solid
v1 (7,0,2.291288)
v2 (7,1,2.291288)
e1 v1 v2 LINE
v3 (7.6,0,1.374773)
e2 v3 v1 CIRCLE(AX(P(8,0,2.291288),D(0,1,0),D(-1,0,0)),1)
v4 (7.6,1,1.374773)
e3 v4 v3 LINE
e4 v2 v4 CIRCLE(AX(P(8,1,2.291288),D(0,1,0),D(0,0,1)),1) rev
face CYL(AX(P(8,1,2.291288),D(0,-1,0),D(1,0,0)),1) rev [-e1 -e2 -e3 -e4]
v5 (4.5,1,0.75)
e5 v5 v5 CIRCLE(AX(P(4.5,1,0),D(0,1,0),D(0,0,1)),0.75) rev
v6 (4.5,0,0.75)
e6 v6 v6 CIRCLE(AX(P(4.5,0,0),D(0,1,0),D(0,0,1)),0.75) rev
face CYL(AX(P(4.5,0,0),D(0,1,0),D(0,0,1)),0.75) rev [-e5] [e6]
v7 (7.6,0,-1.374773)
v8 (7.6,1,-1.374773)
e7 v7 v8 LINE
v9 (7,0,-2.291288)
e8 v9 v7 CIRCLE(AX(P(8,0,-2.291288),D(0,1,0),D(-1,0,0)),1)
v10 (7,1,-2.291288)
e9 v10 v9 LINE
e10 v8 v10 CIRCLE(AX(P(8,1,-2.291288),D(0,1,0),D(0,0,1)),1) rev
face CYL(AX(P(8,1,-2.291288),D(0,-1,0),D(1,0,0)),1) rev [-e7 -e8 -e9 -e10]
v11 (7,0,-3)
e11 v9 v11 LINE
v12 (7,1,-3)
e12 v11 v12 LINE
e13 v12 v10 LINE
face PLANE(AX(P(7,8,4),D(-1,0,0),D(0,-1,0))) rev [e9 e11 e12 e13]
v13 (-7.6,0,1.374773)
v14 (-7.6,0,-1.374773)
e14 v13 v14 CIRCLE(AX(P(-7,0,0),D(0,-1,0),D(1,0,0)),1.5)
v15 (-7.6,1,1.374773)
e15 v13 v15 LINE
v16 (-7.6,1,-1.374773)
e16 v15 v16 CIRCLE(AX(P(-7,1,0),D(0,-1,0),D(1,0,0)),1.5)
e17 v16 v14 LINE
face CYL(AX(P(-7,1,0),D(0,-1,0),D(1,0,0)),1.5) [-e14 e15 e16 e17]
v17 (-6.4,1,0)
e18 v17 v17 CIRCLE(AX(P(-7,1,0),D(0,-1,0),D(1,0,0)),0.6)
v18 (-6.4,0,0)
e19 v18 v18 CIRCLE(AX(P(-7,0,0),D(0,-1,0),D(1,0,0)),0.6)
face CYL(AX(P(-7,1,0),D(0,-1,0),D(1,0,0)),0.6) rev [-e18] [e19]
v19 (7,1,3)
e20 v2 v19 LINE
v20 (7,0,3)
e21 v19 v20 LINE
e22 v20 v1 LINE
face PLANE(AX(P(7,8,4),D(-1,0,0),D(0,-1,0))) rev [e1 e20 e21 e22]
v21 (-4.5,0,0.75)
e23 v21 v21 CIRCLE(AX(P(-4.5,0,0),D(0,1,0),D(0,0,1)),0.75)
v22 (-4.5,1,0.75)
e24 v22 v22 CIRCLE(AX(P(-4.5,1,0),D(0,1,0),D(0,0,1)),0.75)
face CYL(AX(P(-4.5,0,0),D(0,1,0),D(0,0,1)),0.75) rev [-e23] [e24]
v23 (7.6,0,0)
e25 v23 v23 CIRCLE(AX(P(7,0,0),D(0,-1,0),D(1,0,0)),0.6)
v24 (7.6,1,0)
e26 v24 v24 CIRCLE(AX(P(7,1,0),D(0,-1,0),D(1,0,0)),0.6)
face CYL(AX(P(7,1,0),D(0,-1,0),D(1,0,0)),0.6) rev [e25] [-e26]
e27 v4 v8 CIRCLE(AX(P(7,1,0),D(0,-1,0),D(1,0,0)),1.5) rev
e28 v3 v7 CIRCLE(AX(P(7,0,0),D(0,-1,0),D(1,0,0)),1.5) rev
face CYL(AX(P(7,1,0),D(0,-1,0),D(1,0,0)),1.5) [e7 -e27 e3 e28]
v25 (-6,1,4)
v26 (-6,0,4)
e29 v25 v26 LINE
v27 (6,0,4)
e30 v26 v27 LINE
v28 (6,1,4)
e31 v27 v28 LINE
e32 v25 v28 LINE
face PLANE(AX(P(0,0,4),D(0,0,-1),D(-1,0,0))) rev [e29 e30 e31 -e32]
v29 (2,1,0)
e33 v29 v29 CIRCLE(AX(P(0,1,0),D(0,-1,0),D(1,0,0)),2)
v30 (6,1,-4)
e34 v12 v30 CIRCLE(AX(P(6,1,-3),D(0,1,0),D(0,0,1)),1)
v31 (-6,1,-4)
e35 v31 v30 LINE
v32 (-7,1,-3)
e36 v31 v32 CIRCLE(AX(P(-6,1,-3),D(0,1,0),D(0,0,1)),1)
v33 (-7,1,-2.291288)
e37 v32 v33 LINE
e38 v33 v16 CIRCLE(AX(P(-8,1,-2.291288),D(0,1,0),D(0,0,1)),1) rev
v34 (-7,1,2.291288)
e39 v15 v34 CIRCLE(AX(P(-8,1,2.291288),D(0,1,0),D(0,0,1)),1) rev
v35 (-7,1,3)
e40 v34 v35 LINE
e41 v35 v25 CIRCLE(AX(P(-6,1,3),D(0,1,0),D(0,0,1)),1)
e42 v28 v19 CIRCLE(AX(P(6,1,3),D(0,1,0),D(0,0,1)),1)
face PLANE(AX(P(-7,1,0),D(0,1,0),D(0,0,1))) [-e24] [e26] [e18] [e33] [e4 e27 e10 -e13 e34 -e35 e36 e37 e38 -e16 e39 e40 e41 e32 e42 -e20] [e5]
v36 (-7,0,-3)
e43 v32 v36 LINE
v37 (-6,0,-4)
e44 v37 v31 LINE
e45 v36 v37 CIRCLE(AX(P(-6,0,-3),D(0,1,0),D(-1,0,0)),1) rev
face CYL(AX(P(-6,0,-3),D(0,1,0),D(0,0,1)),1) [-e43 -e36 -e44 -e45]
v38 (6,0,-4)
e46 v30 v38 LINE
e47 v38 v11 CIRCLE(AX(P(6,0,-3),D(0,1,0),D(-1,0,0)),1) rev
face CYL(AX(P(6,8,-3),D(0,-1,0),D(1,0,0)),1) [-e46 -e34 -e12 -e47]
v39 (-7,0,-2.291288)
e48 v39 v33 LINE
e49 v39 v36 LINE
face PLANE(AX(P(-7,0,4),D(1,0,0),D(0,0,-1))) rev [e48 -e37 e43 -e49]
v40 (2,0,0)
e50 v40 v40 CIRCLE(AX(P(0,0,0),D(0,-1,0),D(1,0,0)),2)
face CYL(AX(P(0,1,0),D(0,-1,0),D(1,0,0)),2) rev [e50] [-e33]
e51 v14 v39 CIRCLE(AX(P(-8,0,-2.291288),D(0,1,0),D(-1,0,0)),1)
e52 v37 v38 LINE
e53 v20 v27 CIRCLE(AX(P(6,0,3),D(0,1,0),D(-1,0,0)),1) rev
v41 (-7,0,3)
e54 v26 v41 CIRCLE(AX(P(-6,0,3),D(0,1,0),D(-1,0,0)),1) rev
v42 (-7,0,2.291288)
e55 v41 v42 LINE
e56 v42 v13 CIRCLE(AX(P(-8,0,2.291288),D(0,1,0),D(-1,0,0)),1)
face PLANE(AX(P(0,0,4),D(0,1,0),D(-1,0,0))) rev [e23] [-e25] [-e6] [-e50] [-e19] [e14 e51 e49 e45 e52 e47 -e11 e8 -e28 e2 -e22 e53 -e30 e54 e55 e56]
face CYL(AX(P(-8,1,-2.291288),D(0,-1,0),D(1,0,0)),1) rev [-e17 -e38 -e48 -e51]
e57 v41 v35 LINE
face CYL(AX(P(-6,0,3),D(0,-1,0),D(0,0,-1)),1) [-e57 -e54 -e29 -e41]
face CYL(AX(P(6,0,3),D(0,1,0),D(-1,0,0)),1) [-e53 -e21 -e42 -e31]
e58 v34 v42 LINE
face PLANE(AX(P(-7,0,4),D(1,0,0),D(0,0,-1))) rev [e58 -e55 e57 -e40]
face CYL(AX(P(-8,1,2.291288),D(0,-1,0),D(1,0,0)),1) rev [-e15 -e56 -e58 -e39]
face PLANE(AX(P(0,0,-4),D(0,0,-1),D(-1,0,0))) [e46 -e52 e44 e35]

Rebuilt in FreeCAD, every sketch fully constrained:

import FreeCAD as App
import Part
import Sketcher
Q = App.Units.Quantity


def edges_at(feature, points):
    """Names of the edges that pass closest to the given points."""
    edges = feature.Shape.Edges
    near = lambda p: min(range(len(edges)), key=lambda i: edges[i].distToShape(Part.Vertex(*p))[0])
    return sorted({f"Edge{near(p) + 1}" for p in points})


def add_polygon(sketch, points):
    """Adds a closed chain of lines whose ends are joined by coincident constraints."""
    first, n = sketch.GeometryCount, len(points)
    for a, b in zip(points, points[1:] + points[:1]):
        sketch.addGeometry(Part.LineSegment(App.Vector(*a, 0), App.Vector(*b, 0)), False)
    for i in range(n):
        sketch.addConstraint(Sketcher.Constraint("Coincident", first + i, 2, first + (i + 1) % n, 1))

doc = App.newDocument("Part")
body = doc.addObject("PartDesign::Body", "Body")

# Sketch on XY plane
sketch1 = body.newObject("Sketcher::SketchObject", "Sketch")
sketch1.AttachmentSupport = (doc.getObject("XY_Plane"), [""])
sketch1.MapMode = "FlatFace"
add_polygon(sketch1, [(-7, 0), (7, 0), (7, 8), (-7, 8)])  # lines 0-3
sketch1.addConstraint([
    Sketcher.Constraint("Horizontal", 0),
    Sketcher.Constraint("Vertical", 1),
    Sketcher.Constraint("Horizontal", 2),
    Sketcher.Constraint("Vertical", 3),
    Sketcher.Constraint("Symmetric", 0, 2, 3, 2, -1, 1),
    Sketcher.Constraint("DistanceX", 0, 1, 0, 2, Q("14 mm")),
    Sketcher.Constraint("DistanceY", 1, 1, 1, 2, Q("8 mm")),
])
pad1 = body.newObject("PartDesign::Pad", "Pad")
pad1.Profile = sketch1
pad1.Length = 8
pad1.Midplane = True

# Sketch on XY plane
sketch2 = body.newObject("Sketcher::SketchObject", "Sketch001")
sketch2.AttachmentSupport = (doc.getObject("XY_Plane"), [""])
sketch2.MapMode = "FlatFace"
sketch2.addGeometry(Part.Circle(App.Vector(4.5, 5.5, 0), App.Vector(0, 0, 1), 1), False)
sketch2.addConstraint([
    Sketcher.Constraint("Diameter", 0, Q("2 mm")),
    Sketcher.Constraint("DistanceX", -1, 1, 0, 3, Q("4.5 mm")),
    Sketcher.Constraint("DistanceY", -1, 1, 0, 3, Q("5.5 mm")),
])
pocket1 = body.newObject("PartDesign::Pocket", "Pocket")
pocket1.Profile = sketch2
pocket1.Type = "ThroughAll"
pocket1.Midplane = True

# Sketch on YZ plane
sketch3 = body.newObject("Sketcher::SketchObject", "Sketch002")
sketch3.AttachmentSupport = (doc.getObject("YZ_Plane"), [""])
sketch3.MapMode = "FlatFace"
add_polygon(sketch3, [(10, 3), (1, 3), (1, -3), (10, -3)])  # lines 0-3
sketch3.addConstraint([
    Sketcher.Constraint("Horizontal", 0),
    Sketcher.Constraint("Vertical", 1),
    Sketcher.Constraint("Horizontal", 2),
    Sketcher.Constraint("Vertical", 3),
    Sketcher.Constraint("DistanceY", 1, 2, 1, 1, Q("6 mm")),
    Sketcher.Constraint("DistanceX", -1, 1, 0, 2, Q("1 mm")),
    Sketcher.Constraint("DistanceY", -1, 1, 0, 2, Q("3 mm")),
    Sketcher.Constraint("DistanceX", 0, 2, 0, 1, Q("8.732029 mm")),
])
pocket2 = body.newObject("PartDesign::Pocket", "Pocket001")
pocket2.Profile = sketch3
pocket2.Type = "ThroughAll"
pocket2.Midplane = True
doc.recompute()

fillet = body.newObject("PartDesign::Fillet", "Fillet")
fillet.Base = (pocket2, edges_at(pocket2, [
    (-7, 8, -3.5),
    (7, 8, -3.5),
    (-7, 8, 3.5),
    (7, 8, 3.5),
]))
fillet.Radius = 1

# Sketch on XY plane
sketch4 = body.newObject("Sketcher::SketchObject", "Sketch003")
sketch4.AttachmentSupport = (doc.getObject("XY_Plane"), [""])
sketch4.MapMode = "FlatFace"
sketch4.addGeometry(Part.Circle(App.Vector(-3, 4.5, 0), App.Vector(0, 0, 1), 1.5), False)
sketch4.addConstraint([
    Sketcher.Constraint("Diameter", 0, Q("3 mm")),
    Sketcher.Constraint("DistanceX", 0, 3, -1, 1, Q("3 mm")),
    Sketcher.Constraint("DistanceY", -1, 1, 0, 3, Q("4.5 mm")),
])
pad2 = body.newObject("PartDesign::Pad", "Pad001")
pad2.Profile = sketch4
pad2.Type = "TwoLengths"
pad2.Length = 14
pad2.Length2 = 3

# Sketch on XY plane
sketch5 = body.newObject("Sketcher::SketchObject", "Sketch004")
sketch5.AttachmentSupport = (doc.getObject("XY_Plane"), [""])
sketch5.MapMode = "FlatFace"
sketch5.AttachmentOffset = App.Placement(App.Vector(0, 0, 14), App.Rotation())
add_polygon(sketch5, [(-4, 6.1), (-5, 6.1), (-5, 2.5), (-4, 2.5)])  # lines 0-3
sketch5.addConstraint([
    Sketcher.Constraint("Horizontal", 0),
    Sketcher.Constraint("Vertical", 1),
    Sketcher.Constraint("Horizontal", 2),
    Sketcher.Constraint("Vertical", 3),
    Sketcher.Constraint("DistanceX", 2, 2, -1, 1, Q("4 mm")),
    Sketcher.Constraint("DistanceY", -1, 1, 1, 2, Q("2.5 mm")),
    Sketcher.Constraint("DistanceX", 0, 2, 0, 1, Q("0.956444 mm")),
    Sketcher.Constraint("DistanceY", 1, 2, 1, 1, Q("3.560686 mm")),
])
pocket3 = body.newObject("PartDesign::Pocket", "Pocket002")
pocket3.Profile = sketch5
pocket3.Length = 9

# Sketch on XZ plane
sketch6 = body.newObject("Sketcher::SketchObject", "Sketch005")
sketch6.AttachmentSupport = (doc.getObject("XZ_Plane"), [""])
sketch6.MapMode = "FlatFace"
sketch6.addGeometry([
    Part.Circle(App.Vector(-7, 0, 0), App.Vector(0, 0, 1), 1.5),
    Part.Circle(App.Vector(7, 0, 0), App.Vector(0, 0, 1), 1.5),
], False)
sketch6.addConstraint([
    Sketcher.Constraint("Equal", 0, 1),
    Sketcher.Constraint("Symmetric", 0, 3, 1, 3, -1, 1),
    Sketcher.Constraint("PointOnObject", 0, 3, -1),
    Sketcher.Constraint("Diameter", 0, Q("3 mm")),
    Sketcher.Constraint("DistanceX", 0, 3, -1, 1, Q("7 mm")),
])
pad3 = body.newObject("PartDesign::Pad", "Pad002")
pad3.Profile = sketch6
pad3.Length = 1
pad3.Reversed = True

# Sketch on XZ plane
sketch7 = body.newObject("Sketcher::SketchObject", "Sketch006")
sketch7.AttachmentSupport = (doc.getObject("XZ_Plane"), [""])
sketch7.MapMode = "FlatFace"
sketch7.addGeometry([
    Part.Circle(App.Vector(-7, 0, 0), App.Vector(0, 0, 1), 0.6),
    Part.Circle(App.Vector(7, 0, 0), App.Vector(0, 0, 1), 0.6),
], False)
sketch7.addConstraint([
    Sketcher.Constraint("Equal", 0, 1),
    Sketcher.Constraint("Symmetric", 0, 3, 1, 3, -1, 1),
    Sketcher.Constraint("PointOnObject", 0, 3, -1),
    Sketcher.Constraint("Diameter", 0, Q("1.2 mm")),
    Sketcher.Constraint("DistanceX", 0, 3, -1, 1, Q("7 mm")),
])
pocket4 = body.newObject("PartDesign::Pocket", "Pocket003")
pocket4.Profile = sketch7
pocket4.Length = 1
doc.recompute()

fillet2 = body.newObject("PartDesign::Fillet", "Fillet001")
fillet2.Base = (pocket4, edges_at(pocket4, [
    (7, 0.5, -1.5),
    (7, 0.5, 1.5),
    (-7, 0.5, 1.5),
    (-7, 0.5, -1.5),
]))
fillet2.Radius = 1

# Sketch on XZ plane
sketch8 = body.newObject("Sketcher::SketchObject", "Sketch007")
sketch8.AttachmentSupport = (doc.getObject("XZ_Plane"), [""])
sketch8.MapMode = "FlatFace"
sketch8.addGeometry(Part.Circle(App.Vector(0, 0, 0), App.Vector(0, 0, 1), 2), False)
sketch8.addConstraint([
    Sketcher.Constraint("Coincident", 0, 3, -1, 1),
    Sketcher.Constraint("Diameter", 0, Q("4 mm")),
])
pocket5 = body.newObject("PartDesign::Pocket", "Pocket004")
pocket5.Profile = sketch8
pocket5.Length = 1

# Sketch on XZ plane
sketch9 = body.newObject("Sketcher::SketchObject", "Sketch008")
sketch9.AttachmentSupport = (doc.getObject("XZ_Plane"), [""])
sketch9.MapMode = "FlatFace"
sketch9.AttachmentOffset = App.Placement(App.Vector(0, 0, -1), App.Rotation())
sketch9.addGeometry(Part.Circle(App.Vector(0, 0, 0), App.Vector(0, 0, 1), 15), False)
sketch9.addConstraint([
    Sketcher.Constraint("Coincident", 0, 3, -1, 1),
    Sketcher.Constraint("Diameter", 0, Q("30.317324 mm")),
])
pocket6 = body.newObject("PartDesign::Pocket", "Pocket005")
pocket6.Profile = sketch9
pocket6.Type = "ThroughAll"

# Sketch on XZ plane
sketch10 = body.newObject("Sketcher::SketchObject", "Sketch009")
sketch10.AttachmentSupport = (doc.getObject("XZ_Plane"), [""])
sketch10.MapMode = "FlatFace"
sketch10.AttachmentOffset = App.Placement(App.Vector(0, 0, -1), App.Rotation())
sketch10.addGeometry([
    Part.Circle(App.Vector(-4.5, 0, 0), App.Vector(0, 0, 1), 0.8),
    Part.Circle(App.Vector(4.5, 0, 0), App.Vector(0, 0, 1), 0.8),
], False)
sketch10.addConstraint([
    Sketcher.Constraint("Equal", 0, 1),
    Sketcher.Constraint("Symmetric", 0, 3, 1, 3, -1, 1),
    Sketcher.Constraint("PointOnObject", 0, 3, -1),
    Sketcher.Constraint("Diameter", 0, Q("1.5 mm")),
    Sketcher.Constraint("DistanceX", 0, 3, 1, 3, Q("9 mm")),
])
pocket7 = body.newObject("PartDesign::Pocket", "Pocket006")
pocket7.Profile = sketch10
pocket7.Type = "ThroughAll"
pocket7.Reversed = True
doc.recompute()

fillet3 = body.newObject("PartDesign::Fillet", "Fillet002")
fillet3.Base = (pocket7, edges_at(pocket7, [
    (-7, 0.5, -4),
    (-7, 0.5, 4),
    (7, 0.5, -4),
    (7, 0.5, 4),
]))
fillet3.Radius = 1

doc.recompute()
